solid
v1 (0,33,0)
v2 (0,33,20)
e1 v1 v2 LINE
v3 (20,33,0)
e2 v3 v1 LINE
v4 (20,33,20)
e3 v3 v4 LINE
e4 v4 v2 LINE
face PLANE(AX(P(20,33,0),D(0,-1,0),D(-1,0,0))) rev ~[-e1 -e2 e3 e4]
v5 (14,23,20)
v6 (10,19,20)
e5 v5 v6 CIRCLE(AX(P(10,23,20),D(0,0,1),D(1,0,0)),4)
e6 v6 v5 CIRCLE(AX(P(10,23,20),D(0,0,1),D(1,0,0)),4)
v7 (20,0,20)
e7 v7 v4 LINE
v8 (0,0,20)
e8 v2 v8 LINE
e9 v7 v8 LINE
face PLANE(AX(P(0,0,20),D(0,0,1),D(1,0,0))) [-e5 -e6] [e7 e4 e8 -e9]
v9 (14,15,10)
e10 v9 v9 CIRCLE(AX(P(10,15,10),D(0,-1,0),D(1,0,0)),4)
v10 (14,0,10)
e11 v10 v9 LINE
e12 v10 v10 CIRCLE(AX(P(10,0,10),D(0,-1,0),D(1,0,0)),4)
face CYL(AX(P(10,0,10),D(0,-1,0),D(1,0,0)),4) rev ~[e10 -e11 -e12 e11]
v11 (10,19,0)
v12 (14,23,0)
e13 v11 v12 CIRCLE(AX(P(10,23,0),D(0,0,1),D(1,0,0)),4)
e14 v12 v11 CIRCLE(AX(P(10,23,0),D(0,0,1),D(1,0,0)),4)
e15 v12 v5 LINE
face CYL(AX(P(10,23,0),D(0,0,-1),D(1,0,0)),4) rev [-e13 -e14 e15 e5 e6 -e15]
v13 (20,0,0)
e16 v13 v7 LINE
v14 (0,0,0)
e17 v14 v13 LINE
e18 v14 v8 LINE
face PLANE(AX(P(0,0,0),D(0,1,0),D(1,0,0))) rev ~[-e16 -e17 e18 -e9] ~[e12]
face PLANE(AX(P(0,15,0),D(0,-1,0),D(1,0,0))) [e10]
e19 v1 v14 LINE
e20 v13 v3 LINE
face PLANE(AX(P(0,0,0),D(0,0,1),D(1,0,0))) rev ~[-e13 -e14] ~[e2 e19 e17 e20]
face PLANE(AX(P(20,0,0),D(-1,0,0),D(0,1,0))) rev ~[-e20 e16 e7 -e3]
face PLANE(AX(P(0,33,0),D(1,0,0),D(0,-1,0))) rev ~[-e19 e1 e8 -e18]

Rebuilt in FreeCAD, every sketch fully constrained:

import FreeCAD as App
import Part
import Sketcher

doc = App.newDocument("Part")
params = doc.addObject("Spreadsheet::Sheet", "Params")
for row, (alias, value) in enumerate([
    ("sketch1_diameter", "8 mm"),
    ("sketch1_width", "20 mm"),
    ("sketch1_height", "33 mm"),
    ("pad1_length", "20 mm"),
    ("sketch2_diameter", "8 mm"),
    ("pocket1_length", "15 mm"),
], start=1):
    params.set(f"A{row}", alias)
    params.set(f"B{row}", "=" + value)
    params.setAlias(f"B{row}", alias)

body = doc.addObject("PartDesign::Body", "Body")

sketch1 = doc.addObject("Sketcher::SketchObject", "Sketch")
body.addObject(sketch1)
sketch1.AttachmentSupport = (doc.XY_Plane, [""])
sketch1.MapMode = "FlatFace"
sketch1.addGeometry([
    Part.LineSegment(App.Vector(0, 33, 0), App.Vector(0, 0, 0)),
    Part.LineSegment(App.Vector(0, 0, 0), App.Vector(20, 0, 0)),
    Part.LineSegment(App.Vector(20, 0, 0), App.Vector(20, 33, 0)),
    Part.LineSegment(App.Vector(20, 33, 0), App.Vector(0, 33, 0)),
    Part.Circle(App.Vector(10, 23, 0), App.Vector(0, 0, 1), 4),
], False)
sketch1.addConstraint([
    Sketcher.Constraint("Coincident", 0, 2, 1, 1),
    Sketcher.Constraint("Coincident", 1, 2, 2, 1),
    Sketcher.Constraint("Coincident", 2, 2, 3, 1),
    Sketcher.Constraint("Coincident", 3, 2, 0, 1),
    Sketcher.Constraint("Vertical", 0),
    Sketcher.Constraint("Horizontal", 1),
    Sketcher.Constraint("Vertical", 2),
    Sketcher.Constraint("Horizontal", 3),
    Sketcher.Constraint("Coincident", 0, 2, -1, 1),
    Sketcher.Constraint("Diameter", 4, 8.0),
    Sketcher.Constraint("DistanceY", -1, 1, 4, 3, 23.0),
    Sketcher.Constraint("DistanceX", 1, 1, 1, 2, 20.0),
    Sketcher.Constraint("DistanceY", 0, 2, 0, 1, 33.0),
    Sketcher.Constraint("DistanceX", -1, 1, 4, 3, 10.0),
])
sketch1.setExpression("Constraints[9]", "Params.sketch1_diameter")
sketch1.setExpression("Constraints[11]", "Params.sketch1_width")
sketch1.setExpression("Constraints[12]", "Params.sketch1_height")
pad1 = doc.addObject("PartDesign::Pad", "Pad")
body.addObject(pad1)
pad1.Profile = sketch1
pad1.setExpression("Length", "Params.pad1_length")

sketch2 = doc.addObject("Sketcher::SketchObject", "Sketch001")
body.addObject(sketch2)
sketch2.AttachmentSupport = (doc.XZ_Plane, [""])
sketch2.MapMode = "FlatFace"
sketch2.addGeometry(Part.Circle(App.Vector(10, 10, 0), App.Vector(0, 0, 1), 4), False)
sketch2.addConstraint([
    Sketcher.Constraint("Diameter", 0, 8.0),
    Sketcher.Constraint("DistanceX", -1, 1, 0, 3, 10.0),
    Sketcher.Constraint("DistanceY", -1, 1, 0, 3, 10.0),
])
sketch2.setExpression("Constraints[0]", "Params.sketch2_diameter")
pocket1 = doc.addObject("PartDesign::Pocket", "Pocket")
body.addObject(pocket1)
pocket1.Profile = sketch2
pocket1.setExpression("Length", "Params.pocket1_length")

doc.recompute()
